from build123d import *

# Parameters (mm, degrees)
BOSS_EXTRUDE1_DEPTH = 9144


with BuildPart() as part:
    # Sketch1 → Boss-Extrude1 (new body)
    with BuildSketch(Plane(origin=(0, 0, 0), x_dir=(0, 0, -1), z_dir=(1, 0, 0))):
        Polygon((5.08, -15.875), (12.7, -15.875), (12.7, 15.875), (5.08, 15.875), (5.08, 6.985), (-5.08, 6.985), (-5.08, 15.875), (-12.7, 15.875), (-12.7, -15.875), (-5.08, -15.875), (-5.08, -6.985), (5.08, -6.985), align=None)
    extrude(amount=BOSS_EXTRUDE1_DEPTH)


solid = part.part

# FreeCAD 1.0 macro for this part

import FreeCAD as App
import Part
import Sketcher
from FreeCAD import Vector
Q = App.Units.Quantity


def add_polygon(sketch, points):
    """Adds a closed chain of lines whose ends are joined by coincident constraints."""
    first, n = sketch.GeometryCount, len(points)
    for a, b in zip(points, points[1:] + points[:1]):
        sketch.addGeometry(Part.LineSegment(App.Vector(*a, 0), App.Vector(*b, 0)), False)
    for i in range(n):
        sketch.addConstraint(Sketcher.Constraint("Coincident", first + i, 2, first + (i + 1) % n, 1))

doc = App.newDocument("Part")
body = doc.addObject("PartDesign::Body", "Body")

sketch1 = body.newObject("Sketcher::SketchObject", "Sketch")
sketch1.AttachmentSupport = (doc.getObject("YZ_Plane"), [""])
sketch1.MapMode = "FlatFace"
add_polygon(sketch1, [(-16, -5), (-16, -13), (16, -13), (16, -5), (7, -5), (7, 5), (16, 5), (16, 13), (-16, 13), (-16, 5), (-7, 5), (-7, -5)])
sketch1.addConstraint(Sketcher.Constraint("Vertical", 0))
sketch1.addConstraint(Sketcher.Constraint("Horizontal", 1))
sketch1.addConstraint(Sketcher.Constraint("Vertical", 2))
sketch1.addConstraint(Sketcher.Constraint("Horizontal", 3))
sketch1.addConstraint(Sketcher.Constraint("Vertical", 4))
sketch1.addConstraint(Sketcher.Constraint("Horizontal", 5))
sketch1.addConstraint(Sketcher.Constraint("Vertical", 6))
sketch1.addConstraint(Sketcher.Constraint("Horizontal", 7))
sketch1.addConstraint(Sketcher.Constraint("Vertical", 8))
sketch1.addConstraint(Sketcher.Constraint("Horizontal", 9))
sketch1.addConstraint(Sketcher.Constraint("Vertical", 10))
sketch1.addConstraint(Sketcher.Constraint("Horizontal", 11))
sketch1.addConstraint(Sketcher.Constraint("Symmetric", 0, 2, 6, 2, -1, 1))
sketch1.addConstraint(Sketcher.Constraint("Symmetric", 2, 2, 8, 2, -1, 1))
sketch1.addConstraint(Sketcher.Constraint("Symmetric", 4, 2, 10, 2, -1, 1))
sketch1.addConstraint(Sketcher.Constraint("Symmetric", 5, 2, 8, 2, -2))
sketch1.addConstraint(Sketcher.Constraint("DistanceY", 0, 2, 0, 1, Q("0.3 in")))
sketch1.addConstraint(Sketcher.Constraint("DistanceY", 4, 1, 4, 2, Q("0.4 in")))
sketch1.addConstraint(Sketcher.Constraint("DistanceX", 1, 1, 1, 2, Q("1.25 in")))
sketch1.addConstraint(Sketcher.Constraint("DistanceX", 3, 2, 3, 1, Q("0.35 in")))
pad1 = body.newObject("PartDesign::Pad", "Pad")
pad1.Profile = sketch1
pad1.Length = Q("360 in")

doc.recompute()
